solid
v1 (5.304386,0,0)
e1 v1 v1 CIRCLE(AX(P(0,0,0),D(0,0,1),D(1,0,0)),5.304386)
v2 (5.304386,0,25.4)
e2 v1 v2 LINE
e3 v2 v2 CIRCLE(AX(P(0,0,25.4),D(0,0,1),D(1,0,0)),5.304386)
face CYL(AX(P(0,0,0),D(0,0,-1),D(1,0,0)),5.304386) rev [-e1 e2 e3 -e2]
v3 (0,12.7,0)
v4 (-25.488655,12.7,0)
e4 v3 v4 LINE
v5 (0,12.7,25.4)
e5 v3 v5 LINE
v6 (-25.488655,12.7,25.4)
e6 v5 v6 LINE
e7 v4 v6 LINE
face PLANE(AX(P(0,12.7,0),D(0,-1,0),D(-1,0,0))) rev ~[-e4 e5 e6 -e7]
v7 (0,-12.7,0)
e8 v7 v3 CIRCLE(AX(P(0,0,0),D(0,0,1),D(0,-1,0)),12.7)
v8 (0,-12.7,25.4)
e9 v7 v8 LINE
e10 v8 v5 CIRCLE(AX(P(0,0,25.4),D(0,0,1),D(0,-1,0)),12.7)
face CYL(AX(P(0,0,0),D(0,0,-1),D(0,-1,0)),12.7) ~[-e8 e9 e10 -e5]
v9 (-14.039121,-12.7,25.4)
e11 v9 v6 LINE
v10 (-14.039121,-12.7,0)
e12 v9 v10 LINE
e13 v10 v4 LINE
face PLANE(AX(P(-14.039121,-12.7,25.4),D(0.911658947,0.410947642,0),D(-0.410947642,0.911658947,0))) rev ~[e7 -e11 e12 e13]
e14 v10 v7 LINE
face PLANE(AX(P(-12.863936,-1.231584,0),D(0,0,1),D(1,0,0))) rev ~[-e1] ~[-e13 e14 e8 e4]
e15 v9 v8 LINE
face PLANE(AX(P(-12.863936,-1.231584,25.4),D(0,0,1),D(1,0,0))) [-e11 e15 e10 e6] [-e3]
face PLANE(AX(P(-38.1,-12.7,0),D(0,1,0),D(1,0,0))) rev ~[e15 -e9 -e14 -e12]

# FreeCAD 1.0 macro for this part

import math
import FreeCAD as App
import Part
import Sketcher
Q = App.Units.Quantity

doc = App.newDocument("Part")
body = doc.addObject("PartDesign::Body", "Body")

# Sketch on XY plane
sketch1 = doc.addObject("Sketcher::SketchObject", "Sketch")
body.addObject(sketch1)
sketch1.AttachmentSupport = (doc.XY_Plane, [""])
sketch1.MapMode = "FlatFace"
sketch1.addGeometry(Part.LineSegment(App.Vector(-38.1, -12.7, 0), App.Vector(0, -12.7, 0)), False)
sketch1.addGeometry(Part.ArcOfCircle(Part.Circle(App.Vector(0, 0, 0), App.Vector(0, 0, 1), 12.7), math.radians(-90), math.radians(90)), False)
sketch1.addGeometry(Part.LineSegment(App.Vector(0, 12.7, 0), App.Vector(-25.488655, 12.7, 0)), False)
sketch1.addGeometry(Part.LineSegment(App.Vector(-25.488655, 12.7, 0), App.Vector(-38.1, -12.7, 0)), False)
sketch1.addGeometry(Part.Circle(App.Vector(0, 0, 0), App.Vector(0, 0, 1), 5.304386), False)
sketch1.addConstraint(Sketcher.Constraint("Tangent", 0, 2, 1, 1))
sketch1.addConstraint(Sketcher.Constraint("Tangent", 1, 2, 2, 1))
sketch1.addConstraint(Sketcher.Constraint("Coincident", 2, 2, 3, 1))
sketch1.addConstraint(Sketcher.Constraint("Coincident", 3, 2, 0, 1))
sketch1.addConstraint(Sketcher.Constraint("Horizontal", 0))
sketch1.addConstraint(Sketcher.Constraint("Horizontal", 2))
sketch1.addConstraint(Sketcher.Constraint("Coincident", 1, 3, -1, 1))
sketch1.addConstraint(Sketcher.Constraint("Coincident", 4, 3, -1, 1))
sketch1.addConstraint(Sketcher.Constraint("Radius", 1, Q("0.5 in")))
sketch1.addConstraint(Sketcher.Constraint("DistanceX", 0, 1, 0, 2, Q("1.5 in")))
sketch1.addConstraint(Sketcher.Constraint("Diameter", 4, Q("10.608772 mm")))
sketch1.addConstraint(Sketcher.Constraint("DistanceX", 2, 2, 2, 1, Q("25.488655 mm")))
pad1 = doc.addObject("PartDesign::Pad", "Pad")
body.addObject(pad1)
pad1.Profile = sketch1
pad1.Length = Q("1 in")

# Sketch on XY plane
sketch2 = doc.addObject("Sketcher::SketchObject", "Sketch001")
body.addObject(sketch2)
sketch2.AttachmentSupport = (doc.XY_Plane, [""])
sketch2.MapMode = "FlatFace"
sketch2.AttachmentOffset = App.Placement(App.Vector(0, 0, 1 * 25.4), App.Rotation())
sketch2.addGeometry(Part.LineSegment(App.Vector(-14.039121, -12.7, 0), App.Vector(-25.488655, 12.7, 0)), False)
sketch2.addGeometry(Part.LineSegment(App.Vector(-25.488655, 12.7, 0), App.Vector(-38.1, -12.7, 0)), False)
sketch2.addGeometry(Part.LineSegment(App.Vector(-38.1, -12.7, 0), App.Vector(-14.039121, -12.7, 0)), False)
sketch2.addConstraint(Sketcher.Constraint("Coincident", 0, 2, 1, 1))
sketch2.addConstraint(Sketcher.Constraint("Coincident", 1, 2, 2, 1))
sketch2.addConstraint(Sketcher.Constraint("Coincident", 2, 2, 0, 1))
sketch2.addConstraint(Sketcher.Constraint("Horizontal", 2))
sketch2.addConstraint(Sketcher.Constraint("DistanceY", 1, 2, 0, 2, Q("1 in")))
sketch2.addConstraint(Sketcher.Constraint("DistanceY", -1, 1, 0, 2, Q("0.5 in")))
sketch2.addConstraint(Sketcher.Constraint("DistanceX", 1, 2, -1, 1, Q("1.5 in")))
sketch2.addConstraint(Sketcher.Constraint("DistanceX", 2, 1, 2, 2, Q("24.060879 mm")))
sketch2.addConstraint(Sketcher.Constraint("Distance", 0, Q("27.861296 mm")))
pocket1 = doc.addObject("PartDesign::Pocket", "Pocket")
body.addObject(pocket1)
pocket1.Profile = sketch2
pocket1.Length = Q("1 in")

doc.recompute()
